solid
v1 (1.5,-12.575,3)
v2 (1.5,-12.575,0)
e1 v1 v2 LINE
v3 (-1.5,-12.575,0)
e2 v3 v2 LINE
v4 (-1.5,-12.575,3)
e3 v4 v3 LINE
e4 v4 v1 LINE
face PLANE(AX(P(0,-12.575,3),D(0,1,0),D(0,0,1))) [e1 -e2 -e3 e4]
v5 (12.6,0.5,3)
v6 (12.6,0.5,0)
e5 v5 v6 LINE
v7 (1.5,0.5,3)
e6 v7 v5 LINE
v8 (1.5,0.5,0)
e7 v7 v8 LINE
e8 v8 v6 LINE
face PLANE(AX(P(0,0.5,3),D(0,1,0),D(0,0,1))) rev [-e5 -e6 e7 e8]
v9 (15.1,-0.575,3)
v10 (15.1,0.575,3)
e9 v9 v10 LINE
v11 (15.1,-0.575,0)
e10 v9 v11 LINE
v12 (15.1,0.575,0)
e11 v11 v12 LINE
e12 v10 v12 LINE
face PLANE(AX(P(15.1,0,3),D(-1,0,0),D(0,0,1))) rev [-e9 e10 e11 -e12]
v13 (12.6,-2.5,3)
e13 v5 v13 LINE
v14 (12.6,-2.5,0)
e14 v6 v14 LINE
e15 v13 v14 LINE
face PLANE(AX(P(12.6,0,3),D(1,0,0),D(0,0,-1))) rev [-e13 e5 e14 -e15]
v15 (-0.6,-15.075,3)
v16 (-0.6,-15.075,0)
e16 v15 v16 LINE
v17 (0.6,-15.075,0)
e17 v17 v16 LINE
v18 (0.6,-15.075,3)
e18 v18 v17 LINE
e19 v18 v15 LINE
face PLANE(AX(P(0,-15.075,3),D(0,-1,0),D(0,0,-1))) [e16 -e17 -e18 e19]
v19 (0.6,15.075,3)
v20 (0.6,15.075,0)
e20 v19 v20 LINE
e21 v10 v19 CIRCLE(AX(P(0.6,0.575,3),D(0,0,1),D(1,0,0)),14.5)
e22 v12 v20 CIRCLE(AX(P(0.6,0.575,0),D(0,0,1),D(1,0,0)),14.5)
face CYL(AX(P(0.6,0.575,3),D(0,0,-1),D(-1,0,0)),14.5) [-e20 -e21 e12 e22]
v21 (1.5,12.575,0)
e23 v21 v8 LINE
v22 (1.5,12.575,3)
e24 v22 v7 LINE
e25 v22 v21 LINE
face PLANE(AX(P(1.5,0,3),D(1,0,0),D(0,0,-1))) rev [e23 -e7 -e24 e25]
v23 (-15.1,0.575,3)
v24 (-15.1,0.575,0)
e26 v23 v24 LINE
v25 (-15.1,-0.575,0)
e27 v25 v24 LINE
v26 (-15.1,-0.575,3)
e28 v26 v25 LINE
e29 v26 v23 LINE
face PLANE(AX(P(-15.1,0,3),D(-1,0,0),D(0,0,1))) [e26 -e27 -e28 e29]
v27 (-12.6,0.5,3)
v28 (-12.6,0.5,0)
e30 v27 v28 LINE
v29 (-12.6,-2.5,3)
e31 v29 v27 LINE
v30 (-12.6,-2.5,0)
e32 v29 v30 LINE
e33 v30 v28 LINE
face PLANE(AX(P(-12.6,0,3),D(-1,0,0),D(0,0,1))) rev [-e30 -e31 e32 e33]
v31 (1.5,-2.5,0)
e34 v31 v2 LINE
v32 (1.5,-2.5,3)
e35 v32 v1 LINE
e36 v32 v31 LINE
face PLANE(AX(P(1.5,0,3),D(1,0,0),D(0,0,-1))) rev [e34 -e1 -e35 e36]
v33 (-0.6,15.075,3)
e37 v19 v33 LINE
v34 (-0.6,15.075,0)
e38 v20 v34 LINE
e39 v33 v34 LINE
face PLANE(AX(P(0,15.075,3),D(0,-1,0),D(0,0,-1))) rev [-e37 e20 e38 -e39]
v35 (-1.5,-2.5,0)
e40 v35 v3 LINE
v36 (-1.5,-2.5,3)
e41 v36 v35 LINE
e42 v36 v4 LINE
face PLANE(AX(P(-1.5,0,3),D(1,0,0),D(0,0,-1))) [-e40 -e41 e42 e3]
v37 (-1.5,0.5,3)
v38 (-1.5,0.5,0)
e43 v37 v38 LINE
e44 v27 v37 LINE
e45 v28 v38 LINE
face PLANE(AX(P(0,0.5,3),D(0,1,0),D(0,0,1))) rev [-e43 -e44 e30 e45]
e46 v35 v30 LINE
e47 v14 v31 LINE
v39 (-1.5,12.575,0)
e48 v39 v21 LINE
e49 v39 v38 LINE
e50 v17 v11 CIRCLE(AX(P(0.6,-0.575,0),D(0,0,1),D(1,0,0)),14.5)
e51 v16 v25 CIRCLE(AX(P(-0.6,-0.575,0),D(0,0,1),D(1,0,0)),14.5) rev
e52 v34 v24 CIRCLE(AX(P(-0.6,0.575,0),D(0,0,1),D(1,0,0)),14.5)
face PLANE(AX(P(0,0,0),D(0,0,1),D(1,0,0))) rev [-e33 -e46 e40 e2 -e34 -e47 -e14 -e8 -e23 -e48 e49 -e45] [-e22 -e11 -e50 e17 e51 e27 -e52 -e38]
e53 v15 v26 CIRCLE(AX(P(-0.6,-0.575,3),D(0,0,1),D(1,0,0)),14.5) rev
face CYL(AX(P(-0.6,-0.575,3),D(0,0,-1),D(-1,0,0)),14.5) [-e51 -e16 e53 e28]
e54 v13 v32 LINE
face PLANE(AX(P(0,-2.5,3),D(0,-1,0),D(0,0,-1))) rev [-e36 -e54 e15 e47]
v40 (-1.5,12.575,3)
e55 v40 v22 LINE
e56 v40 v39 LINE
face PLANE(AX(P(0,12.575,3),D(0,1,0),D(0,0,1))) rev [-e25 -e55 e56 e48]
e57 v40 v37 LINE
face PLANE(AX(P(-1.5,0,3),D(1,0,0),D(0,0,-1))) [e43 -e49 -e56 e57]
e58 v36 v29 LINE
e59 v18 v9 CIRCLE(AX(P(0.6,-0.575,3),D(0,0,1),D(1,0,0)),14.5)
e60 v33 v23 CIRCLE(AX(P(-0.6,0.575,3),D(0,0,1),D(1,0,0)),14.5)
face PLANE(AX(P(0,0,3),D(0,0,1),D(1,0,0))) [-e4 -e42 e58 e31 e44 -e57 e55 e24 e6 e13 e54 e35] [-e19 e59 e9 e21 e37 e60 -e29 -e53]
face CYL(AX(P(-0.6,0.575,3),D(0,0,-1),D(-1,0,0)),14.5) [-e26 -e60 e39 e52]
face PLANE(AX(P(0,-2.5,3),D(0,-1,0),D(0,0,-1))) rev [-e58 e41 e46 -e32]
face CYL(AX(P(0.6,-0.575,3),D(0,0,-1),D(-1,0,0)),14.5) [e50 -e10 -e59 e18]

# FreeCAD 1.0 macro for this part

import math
import FreeCAD as App
import Part
import Sketcher
Q = App.Units.Quantity


def add_polygon(sketch, points):
    """Adds a closed chain of lines whose ends are joined by coincident constraints."""
    first, n = sketch.GeometryCount, len(points)
    for a, b in zip(points, points[1:] + points[:1]):
        sketch.addGeometry(Part.LineSegment(App.Vector(*a, 0), App.Vector(*b, 0)), False)
    for i in range(n):
        sketch.addConstraint(Sketcher.Constraint("Coincident", first + i, 2, first + (i + 1) % n, 1))

doc = App.newDocument("Part")
params = doc.addObject("Spreadsheet::Sheet", "Params")
for row, (alias, value) in enumerate([
    ("sketch1_radius", "14.5 mm"),
    ("sketch1_width", "3 mm"),
    ("sketch1_width2", "1.2 mm"),
    ("sketch1_width3", "11.1 mm"),
    ("sketch1_height", "1.15 mm"),
    ("pad1_length", "3 mm"),
], start=1):
    params.set(f"A{row}", alias)
    params.set(f"B{row}", "=" + value)
    params.setAlias(f"B{row}", alias)

body = doc.addObject("PartDesign::Body", "Body")

sketch1 = doc.addObject("Sketcher::SketchObject", "Sketch")
body.addObject(sketch1)
sketch1.AttachmentSupport = (doc.XY_Plane, [""])
sketch1.MapMode = "FlatFace"
sketch1.addGeometry(Part.LineSegment(App.Vector(-0.6, -15.1, 0), App.Vector(0.6, -15.1, 0)), False)
sketch1.addGeometry(Part.ArcOfCircle(Part.Circle(App.Vector(0.6, -0.6, 0), App.Vector(0, 0, 1), 14.5), math.radians(-90), math.radians(0)), False)
sketch1.addGeometry(Part.LineSegment(App.Vector(15.1, -0.6, 0), App.Vector(15.1, 0.6, 0)), False)
sketch1.addGeometry(Part.ArcOfCircle(Part.Circle(App.Vector(0.6, 0.6, 0), App.Vector(0, 0, 1), 14.5), math.radians(0), math.radians(90)), False)
sketch1.addGeometry(Part.LineSegment(App.Vector(0.6, 15.1, 0), App.Vector(-0.6, 15.1, 0)), False)
sketch1.addGeometry(Part.ArcOfCircle(Part.Circle(App.Vector(-0.6, 0.6, 0), App.Vector(0, 0, 1), 14.5), math.radians(90), math.radians(180)), False)
sketch1.addGeometry(Part.LineSegment(App.Vector(-15.1, 0.6, 0), App.Vector(-15.1, -0.6, 0)), False)
sketch1.addGeometry(Part.ArcOfCircle(Part.Circle(App.Vector(-0.6, -0.6, 0), App.Vector(0, 0, 1), 14.5), math.radians(-180), math.radians(-90)), False)
add_polygon(sketch1, [(-1.5, -2.5), (-12.6, -2.5), (-12.6, 0.5), (-1.5, 0.5), (-1.5, 12.6), (1.5, 12.6), (1.5, 0.5), (12.6, 0.5), (12.6, -2.5), (1.5, -2.5), (1.5, -12.6), (-1.5, -12.6)])
sketch1.addConstraint([
    Sketcher.Constraint("Tangent", 0, 2, 1, 1),
    Sketcher.Constraint("Tangent", 1, 2, 2, 1),
    Sketcher.Constraint("Tangent", 2, 2, 3, 1),
    Sketcher.Constraint("Tangent", 3, 2, 4, 1),
    Sketcher.Constraint("Tangent", 4, 2, 5, 1),
    Sketcher.Constraint("Tangent", 5, 2, 6, 1),
    Sketcher.Constraint("Tangent", 6, 2, 7, 1),
    Sketcher.Constraint("Tangent", 7, 2, 0, 1),
    Sketcher.Constraint("Horizontal", 0),
    Sketcher.Constraint("Vertical", 2),
    Sketcher.Constraint("Horizontal", 4),
    Sketcher.Constraint("Vertical", 6),
    Sketcher.Constraint("Horizontal", 8),
    Sketcher.Constraint("Vertical", 9),
    Sketcher.Constraint("Horizontal", 10),
    Sketcher.Constraint("Vertical", 11),
    Sketcher.Constraint("Horizontal", 12),
    Sketcher.Constraint("Vertical", 13),
    Sketcher.Constraint("Horizontal", 14),
    Sketcher.Constraint("Vertical", 15),
    Sketcher.Constraint("Horizontal", 16),
    Sketcher.Constraint("Vertical", 17),
    Sketcher.Constraint("Horizontal", 18),
    Sketcher.Constraint("Vertical", 19),
    Sketcher.Constraint("Equal", 1, 3),
    Sketcher.Constraint("Equal", 3, 5),
    Sketcher.Constraint("Equal", 5, 7),
    Sketcher.Constraint("Symmetric", 1, 3, 5, 3, -1, 1),
    Sketcher.Constraint("Symmetric", 11, 2, 17, 2, -1, 1),
    Sketcher.Constraint("Symmetric", 10, 2, 13, 2, -2),
    Sketcher.Constraint("Symmetric", 8, 2, 15, 2, -2),
    Sketcher.Constraint("Vertical", 11, 2, 18, 2),
    Sketcher.Constraint("Equal", 18, 9),
    Sketcher.Constraint("Radius", 1, Q("14.5 mm")),
    Sketcher.Constraint("DistanceX", 12, 1, 12, 2, Q("3 mm")),
    Sketcher.Constraint("DistanceX", 0, 1, 0, 2, Q("1.2 mm")),
    Sketcher.Constraint("DistanceX", 8, 2, 8, 1, Q("11.1 mm")),
    Sketcher.Constraint("DistanceY", 5, 3, 11, 2, Q("12 mm")),
    Sketcher.Constraint("DistanceY", 2, 1, 2, 2, Q("1.15 mm")),
    Sketcher.Constraint("DistanceY", 8, 2, -1, 1, Q("2.5 mm")),
])
sketch1.setExpression("Constraints[45]", "Params.sketch1_radius")
sketch1.setExpression("Constraints[46]", "Params.sketch1_width")
sketch1.setExpression("Constraints[47]", "Params.sketch1_width2")
sketch1.setExpression("Constraints[48]", "Params.sketch1_width3")
sketch1.setExpression("Constraints[50]", "Params.sketch1_height")
pad1 = doc.addObject("PartDesign::Pad", "Pad")
body.addObject(pad1)
pad1.Profile = sketch1
pad1.setExpression("Length", "Params.pad1_length")

doc.recompute()
